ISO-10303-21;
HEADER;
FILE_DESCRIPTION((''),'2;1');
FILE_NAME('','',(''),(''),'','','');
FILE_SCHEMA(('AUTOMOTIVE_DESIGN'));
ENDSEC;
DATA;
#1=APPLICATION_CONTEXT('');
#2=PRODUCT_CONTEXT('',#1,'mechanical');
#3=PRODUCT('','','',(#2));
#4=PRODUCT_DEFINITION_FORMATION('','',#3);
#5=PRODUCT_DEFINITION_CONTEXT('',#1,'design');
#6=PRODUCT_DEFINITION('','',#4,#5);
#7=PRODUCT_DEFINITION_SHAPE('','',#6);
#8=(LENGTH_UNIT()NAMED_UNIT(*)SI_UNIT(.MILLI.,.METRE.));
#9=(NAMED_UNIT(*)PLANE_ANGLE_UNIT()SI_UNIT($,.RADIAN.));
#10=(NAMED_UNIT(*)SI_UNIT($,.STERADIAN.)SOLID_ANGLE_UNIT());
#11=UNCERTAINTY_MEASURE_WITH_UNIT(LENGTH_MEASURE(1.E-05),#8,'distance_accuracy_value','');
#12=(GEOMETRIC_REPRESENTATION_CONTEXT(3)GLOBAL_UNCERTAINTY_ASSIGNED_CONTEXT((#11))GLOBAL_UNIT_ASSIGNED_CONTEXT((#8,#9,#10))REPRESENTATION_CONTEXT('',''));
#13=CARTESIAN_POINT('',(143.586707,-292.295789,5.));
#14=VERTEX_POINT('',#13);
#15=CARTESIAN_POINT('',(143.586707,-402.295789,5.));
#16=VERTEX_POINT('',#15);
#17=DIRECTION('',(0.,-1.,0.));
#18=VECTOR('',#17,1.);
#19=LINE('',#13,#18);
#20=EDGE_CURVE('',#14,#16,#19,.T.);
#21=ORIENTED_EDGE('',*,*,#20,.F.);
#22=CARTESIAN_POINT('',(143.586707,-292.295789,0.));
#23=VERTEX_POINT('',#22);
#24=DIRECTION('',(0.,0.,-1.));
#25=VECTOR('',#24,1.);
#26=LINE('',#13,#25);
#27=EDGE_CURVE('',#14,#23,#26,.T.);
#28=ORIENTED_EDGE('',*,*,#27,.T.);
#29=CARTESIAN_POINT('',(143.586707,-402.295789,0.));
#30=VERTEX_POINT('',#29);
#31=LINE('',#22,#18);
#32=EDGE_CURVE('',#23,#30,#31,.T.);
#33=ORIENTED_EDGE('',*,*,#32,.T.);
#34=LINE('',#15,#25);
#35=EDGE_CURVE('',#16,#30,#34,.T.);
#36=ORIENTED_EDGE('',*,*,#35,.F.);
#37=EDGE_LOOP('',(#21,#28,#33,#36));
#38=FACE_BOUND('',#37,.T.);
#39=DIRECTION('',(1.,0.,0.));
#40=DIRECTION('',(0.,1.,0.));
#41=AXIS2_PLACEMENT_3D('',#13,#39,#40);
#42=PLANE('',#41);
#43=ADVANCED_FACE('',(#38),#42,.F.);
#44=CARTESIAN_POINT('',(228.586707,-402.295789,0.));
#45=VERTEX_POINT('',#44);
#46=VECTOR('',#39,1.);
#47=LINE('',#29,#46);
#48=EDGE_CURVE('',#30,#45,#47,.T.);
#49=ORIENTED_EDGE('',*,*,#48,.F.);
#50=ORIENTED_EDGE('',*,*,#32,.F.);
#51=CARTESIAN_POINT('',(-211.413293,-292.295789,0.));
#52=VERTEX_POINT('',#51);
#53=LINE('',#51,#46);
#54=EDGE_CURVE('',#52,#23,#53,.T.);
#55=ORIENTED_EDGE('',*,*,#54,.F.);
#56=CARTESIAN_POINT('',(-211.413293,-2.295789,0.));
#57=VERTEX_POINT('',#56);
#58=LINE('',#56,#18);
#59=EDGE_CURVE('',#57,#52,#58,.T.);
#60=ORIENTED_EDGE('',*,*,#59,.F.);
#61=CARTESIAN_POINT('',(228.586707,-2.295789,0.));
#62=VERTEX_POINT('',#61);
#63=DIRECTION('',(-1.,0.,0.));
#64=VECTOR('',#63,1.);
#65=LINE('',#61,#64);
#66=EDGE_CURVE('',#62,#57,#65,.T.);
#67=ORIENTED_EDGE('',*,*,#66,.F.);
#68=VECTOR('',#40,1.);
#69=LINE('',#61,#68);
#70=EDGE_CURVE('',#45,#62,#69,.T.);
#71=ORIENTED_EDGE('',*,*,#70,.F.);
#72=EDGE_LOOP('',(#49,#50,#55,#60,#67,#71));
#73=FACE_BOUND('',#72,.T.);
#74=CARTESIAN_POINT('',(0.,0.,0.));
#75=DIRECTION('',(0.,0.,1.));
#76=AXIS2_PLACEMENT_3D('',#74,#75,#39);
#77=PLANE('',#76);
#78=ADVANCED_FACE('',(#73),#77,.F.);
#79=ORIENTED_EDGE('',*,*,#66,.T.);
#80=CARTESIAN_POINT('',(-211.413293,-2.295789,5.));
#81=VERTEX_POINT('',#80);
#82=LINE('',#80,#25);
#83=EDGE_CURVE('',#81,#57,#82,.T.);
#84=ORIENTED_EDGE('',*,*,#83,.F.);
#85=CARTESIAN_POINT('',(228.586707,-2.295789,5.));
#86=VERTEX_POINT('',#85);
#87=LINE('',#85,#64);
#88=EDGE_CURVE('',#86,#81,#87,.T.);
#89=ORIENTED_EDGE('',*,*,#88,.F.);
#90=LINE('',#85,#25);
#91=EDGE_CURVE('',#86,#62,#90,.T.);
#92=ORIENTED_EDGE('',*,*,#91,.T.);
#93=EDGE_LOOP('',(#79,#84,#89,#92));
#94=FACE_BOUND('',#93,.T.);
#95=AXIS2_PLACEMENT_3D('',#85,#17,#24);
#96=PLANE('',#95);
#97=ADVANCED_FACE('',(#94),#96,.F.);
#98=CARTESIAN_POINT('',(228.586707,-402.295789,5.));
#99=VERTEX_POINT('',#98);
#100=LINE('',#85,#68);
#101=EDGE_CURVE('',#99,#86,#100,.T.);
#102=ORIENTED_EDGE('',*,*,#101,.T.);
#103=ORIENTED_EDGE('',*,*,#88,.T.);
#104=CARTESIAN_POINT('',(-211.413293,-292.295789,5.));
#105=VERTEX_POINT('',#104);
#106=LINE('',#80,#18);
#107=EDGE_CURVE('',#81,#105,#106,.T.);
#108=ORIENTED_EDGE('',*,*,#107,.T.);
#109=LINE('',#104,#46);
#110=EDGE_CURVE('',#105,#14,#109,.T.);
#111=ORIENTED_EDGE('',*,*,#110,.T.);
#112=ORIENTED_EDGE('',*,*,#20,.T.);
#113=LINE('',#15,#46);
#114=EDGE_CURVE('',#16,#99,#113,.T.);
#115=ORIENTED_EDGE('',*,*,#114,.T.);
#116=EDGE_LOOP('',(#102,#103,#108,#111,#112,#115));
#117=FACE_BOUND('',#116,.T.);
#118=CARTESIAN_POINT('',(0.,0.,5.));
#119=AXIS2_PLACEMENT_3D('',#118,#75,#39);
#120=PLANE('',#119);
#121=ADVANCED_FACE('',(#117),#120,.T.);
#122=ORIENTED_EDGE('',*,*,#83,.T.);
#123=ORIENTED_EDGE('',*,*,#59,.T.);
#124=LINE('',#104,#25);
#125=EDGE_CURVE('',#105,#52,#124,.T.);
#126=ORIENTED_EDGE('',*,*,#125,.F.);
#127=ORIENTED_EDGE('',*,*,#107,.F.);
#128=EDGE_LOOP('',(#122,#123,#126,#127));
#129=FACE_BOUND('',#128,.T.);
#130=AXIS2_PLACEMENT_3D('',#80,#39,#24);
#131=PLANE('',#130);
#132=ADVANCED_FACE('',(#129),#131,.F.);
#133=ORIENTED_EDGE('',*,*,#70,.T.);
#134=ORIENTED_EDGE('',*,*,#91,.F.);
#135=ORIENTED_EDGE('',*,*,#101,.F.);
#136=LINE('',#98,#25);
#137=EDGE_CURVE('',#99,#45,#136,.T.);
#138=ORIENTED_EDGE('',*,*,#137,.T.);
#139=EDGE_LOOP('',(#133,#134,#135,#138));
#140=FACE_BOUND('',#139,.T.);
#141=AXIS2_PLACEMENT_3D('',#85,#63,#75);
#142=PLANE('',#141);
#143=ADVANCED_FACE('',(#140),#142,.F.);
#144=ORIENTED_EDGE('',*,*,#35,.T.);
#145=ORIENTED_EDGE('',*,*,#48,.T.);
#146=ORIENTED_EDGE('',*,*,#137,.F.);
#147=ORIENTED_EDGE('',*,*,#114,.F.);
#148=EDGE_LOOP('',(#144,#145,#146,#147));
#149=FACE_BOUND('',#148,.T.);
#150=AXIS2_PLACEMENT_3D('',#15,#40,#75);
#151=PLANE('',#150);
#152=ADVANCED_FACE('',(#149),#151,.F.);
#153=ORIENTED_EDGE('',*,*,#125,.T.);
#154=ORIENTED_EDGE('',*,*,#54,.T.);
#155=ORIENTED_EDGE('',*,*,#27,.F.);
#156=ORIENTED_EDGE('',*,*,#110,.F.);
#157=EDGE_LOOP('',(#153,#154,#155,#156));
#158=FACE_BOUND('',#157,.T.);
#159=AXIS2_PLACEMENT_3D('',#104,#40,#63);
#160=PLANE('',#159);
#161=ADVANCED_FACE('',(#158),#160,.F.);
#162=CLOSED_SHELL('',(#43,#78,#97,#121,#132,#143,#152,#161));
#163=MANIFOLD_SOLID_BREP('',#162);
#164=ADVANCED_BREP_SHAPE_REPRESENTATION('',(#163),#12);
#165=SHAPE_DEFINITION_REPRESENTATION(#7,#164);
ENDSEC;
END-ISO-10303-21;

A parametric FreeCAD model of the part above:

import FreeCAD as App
import Part
import Sketcher

V = App.Vector
Q = App.Units.Quantity

doc = App.newDocument("Part")
body = doc.addObject("PartDesign::Body", "Body")

sketch1 = doc.addObject("Sketcher::SketchObject", "Sketch")
body.addObject(sketch1)
sketch1.AttachmentSupport = (doc.XY_Plane, [""])
sketch1.MapMode = "FlatFace"
sketch1.addGeometry([
    Part.LineSegment(V(144, -402, 0), V(229, -402, 0)),
    Part.LineSegment(V(229, -402, 0), V(229, -2, 0)),
    Part.LineSegment(V(229, -2, 0), V(-211, -2, 0)),
    Part.LineSegment(V(-211, -2, 0), V(-211, -292, 0)),
    Part.LineSegment(V(-211, -292, 0), V(144, -292, 0)),
    Part.LineSegment(V(144, -292, 0), V(144, -402, 0)),
], False)
sketch1.addConstraint([
    Sketcher.Constraint("Coincident", 0, 2, 1, 1),
    Sketcher.Constraint("Coincident", 1, 2, 2, 1),
    Sketcher.Constraint("Coincident", 2, 2, 3, 1),
    Sketcher.Constraint("Coincident", 3, 2, 4, 1),
    Sketcher.Constraint("Coincident", 4, 2, 5, 1),
    Sketcher.Constraint("Coincident", 5, 2, 0, 1),
    Sketcher.Constraint("Horizontal", 0),
    Sketcher.Constraint("Vertical", 1),
    Sketcher.Constraint("Horizontal", 2),
    Sketcher.Constraint("Vertical", 3),
    Sketcher.Constraint("Horizontal", 4),
    Sketcher.Constraint("Vertical", 5),
    Sketcher.Constraint("DistanceX", 0, 1, 0, 2, Q("85 mm")),
    Sketcher.Constraint("DistanceX", 2, 2, 2, 1, Q("440 mm")),
    Sketcher.Constraint("DistanceY", 1, 1, 1, 2, Q("400 mm")),
    Sketcher.Constraint("DistanceY", 3, 2, 3, 1, Q("290 mm")),
    Sketcher.Constraint("DistanceY", 0, 2, -1, 1, Q("402.295789 mm")),
    Sketcher.Constraint("DistanceX", -1, 1, 0, 2, Q("228.586707 mm")),
])
pad1 = doc.addObject("PartDesign::Pad", "Pad")
body.addObject(pad1)
pad1.Profile = sketch1
pad1.Length = 5

doc.recompute()
